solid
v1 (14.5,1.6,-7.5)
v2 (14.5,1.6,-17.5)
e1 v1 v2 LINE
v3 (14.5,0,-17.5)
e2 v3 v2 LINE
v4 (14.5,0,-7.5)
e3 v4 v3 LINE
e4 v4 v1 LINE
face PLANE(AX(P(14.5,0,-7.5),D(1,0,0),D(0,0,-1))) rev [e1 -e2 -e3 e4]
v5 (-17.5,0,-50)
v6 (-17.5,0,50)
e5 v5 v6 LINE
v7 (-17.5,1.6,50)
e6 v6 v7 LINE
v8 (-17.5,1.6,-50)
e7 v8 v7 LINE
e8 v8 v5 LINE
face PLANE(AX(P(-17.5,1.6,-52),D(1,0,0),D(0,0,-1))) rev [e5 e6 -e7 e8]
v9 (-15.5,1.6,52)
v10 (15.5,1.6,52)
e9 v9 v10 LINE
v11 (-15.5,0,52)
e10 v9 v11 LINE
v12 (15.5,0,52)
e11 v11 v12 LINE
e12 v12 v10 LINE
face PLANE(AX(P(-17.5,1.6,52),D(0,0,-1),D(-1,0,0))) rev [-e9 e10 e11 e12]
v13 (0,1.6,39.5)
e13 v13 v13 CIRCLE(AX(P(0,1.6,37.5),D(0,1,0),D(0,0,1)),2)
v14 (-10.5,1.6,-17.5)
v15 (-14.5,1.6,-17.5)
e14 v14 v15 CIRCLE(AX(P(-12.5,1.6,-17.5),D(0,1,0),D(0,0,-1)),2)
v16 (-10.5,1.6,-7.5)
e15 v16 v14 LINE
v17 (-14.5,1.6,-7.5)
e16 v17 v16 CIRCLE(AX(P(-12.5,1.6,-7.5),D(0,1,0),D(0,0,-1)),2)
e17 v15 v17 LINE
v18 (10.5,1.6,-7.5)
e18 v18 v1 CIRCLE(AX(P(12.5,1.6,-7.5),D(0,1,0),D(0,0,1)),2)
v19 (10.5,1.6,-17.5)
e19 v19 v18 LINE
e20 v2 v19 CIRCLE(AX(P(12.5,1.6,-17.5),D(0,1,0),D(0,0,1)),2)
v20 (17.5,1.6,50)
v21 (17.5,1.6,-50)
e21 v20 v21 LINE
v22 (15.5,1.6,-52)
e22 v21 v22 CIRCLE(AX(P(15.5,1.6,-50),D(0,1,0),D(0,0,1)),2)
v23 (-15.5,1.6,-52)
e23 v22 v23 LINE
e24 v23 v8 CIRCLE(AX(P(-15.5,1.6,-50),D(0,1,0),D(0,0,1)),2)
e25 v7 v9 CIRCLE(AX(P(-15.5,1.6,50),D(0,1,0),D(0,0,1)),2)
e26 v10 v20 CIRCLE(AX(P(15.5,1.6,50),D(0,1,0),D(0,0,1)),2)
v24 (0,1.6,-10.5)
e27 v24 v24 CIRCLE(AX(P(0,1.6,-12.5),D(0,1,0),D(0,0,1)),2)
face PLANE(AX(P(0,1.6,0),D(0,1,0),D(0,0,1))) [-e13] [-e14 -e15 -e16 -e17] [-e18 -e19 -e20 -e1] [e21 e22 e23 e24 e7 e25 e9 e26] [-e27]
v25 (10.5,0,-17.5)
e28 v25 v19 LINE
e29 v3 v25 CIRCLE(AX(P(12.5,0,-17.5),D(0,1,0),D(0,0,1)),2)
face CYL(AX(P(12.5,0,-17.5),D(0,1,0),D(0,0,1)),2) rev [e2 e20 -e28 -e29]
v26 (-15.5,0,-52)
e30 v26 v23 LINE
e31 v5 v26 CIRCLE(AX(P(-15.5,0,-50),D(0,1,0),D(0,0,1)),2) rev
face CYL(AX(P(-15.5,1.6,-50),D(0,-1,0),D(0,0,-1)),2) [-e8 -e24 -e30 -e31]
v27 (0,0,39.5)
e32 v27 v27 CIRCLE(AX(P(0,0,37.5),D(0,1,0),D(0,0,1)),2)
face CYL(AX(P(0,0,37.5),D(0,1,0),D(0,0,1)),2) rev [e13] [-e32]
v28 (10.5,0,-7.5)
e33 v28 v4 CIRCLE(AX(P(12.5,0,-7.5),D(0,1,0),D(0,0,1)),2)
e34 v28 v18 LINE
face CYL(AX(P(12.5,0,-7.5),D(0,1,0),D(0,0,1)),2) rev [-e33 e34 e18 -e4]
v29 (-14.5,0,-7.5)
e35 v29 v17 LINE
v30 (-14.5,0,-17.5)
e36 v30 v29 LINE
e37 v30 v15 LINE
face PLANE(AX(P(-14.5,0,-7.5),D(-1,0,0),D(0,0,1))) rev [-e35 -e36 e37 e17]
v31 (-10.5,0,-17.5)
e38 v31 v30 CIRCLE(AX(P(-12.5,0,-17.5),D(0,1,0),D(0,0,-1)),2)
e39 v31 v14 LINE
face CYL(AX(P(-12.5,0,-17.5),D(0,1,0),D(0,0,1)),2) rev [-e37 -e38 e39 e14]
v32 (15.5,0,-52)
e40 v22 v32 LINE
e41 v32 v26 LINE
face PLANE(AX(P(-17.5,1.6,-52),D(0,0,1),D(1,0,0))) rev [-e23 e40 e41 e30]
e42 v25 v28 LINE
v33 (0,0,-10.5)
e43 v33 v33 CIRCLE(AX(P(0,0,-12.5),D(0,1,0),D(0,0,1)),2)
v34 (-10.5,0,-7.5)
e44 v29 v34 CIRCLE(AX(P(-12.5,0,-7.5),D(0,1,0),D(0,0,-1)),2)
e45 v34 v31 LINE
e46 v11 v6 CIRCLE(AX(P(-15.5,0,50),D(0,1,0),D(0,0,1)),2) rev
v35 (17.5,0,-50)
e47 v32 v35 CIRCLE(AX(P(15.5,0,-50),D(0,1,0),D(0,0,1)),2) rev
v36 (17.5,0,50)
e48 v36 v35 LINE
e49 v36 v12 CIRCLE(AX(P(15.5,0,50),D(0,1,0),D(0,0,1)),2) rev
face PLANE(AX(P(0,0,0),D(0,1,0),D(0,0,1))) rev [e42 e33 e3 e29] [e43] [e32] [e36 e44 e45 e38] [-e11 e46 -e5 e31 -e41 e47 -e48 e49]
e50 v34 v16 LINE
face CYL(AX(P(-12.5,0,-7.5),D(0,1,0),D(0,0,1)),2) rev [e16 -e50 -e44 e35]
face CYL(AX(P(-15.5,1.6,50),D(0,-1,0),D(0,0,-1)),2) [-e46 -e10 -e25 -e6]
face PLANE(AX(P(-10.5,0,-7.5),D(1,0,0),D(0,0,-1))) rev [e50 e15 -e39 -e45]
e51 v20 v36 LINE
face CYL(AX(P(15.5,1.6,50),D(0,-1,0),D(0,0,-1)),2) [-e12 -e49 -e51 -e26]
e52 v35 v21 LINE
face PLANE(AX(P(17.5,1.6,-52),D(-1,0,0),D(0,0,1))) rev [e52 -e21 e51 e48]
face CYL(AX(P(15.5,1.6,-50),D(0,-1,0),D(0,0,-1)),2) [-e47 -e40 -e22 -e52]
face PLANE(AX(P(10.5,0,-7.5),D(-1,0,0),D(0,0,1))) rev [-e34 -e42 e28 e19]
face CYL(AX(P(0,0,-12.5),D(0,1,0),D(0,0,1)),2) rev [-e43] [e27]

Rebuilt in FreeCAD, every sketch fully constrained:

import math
import FreeCAD as App
import Part
import Sketcher
Q = App.Units.Quantity


def edges_at(feature, points):
    """Names of the edges that pass closest to the given points."""
    edges = feature.Shape.Edges
    near = lambda p: min(range(len(edges)), key=lambda i: edges[i].distToShape(Part.Vertex(*p))[0])
    return sorted({f"Edge{near(p) + 1}" for p in points})


def add_polygon(sketch, points):
    """Adds a closed chain of lines whose ends are joined by coincident constraints."""
    first, n = sketch.GeometryCount, len(points)
    for a, b in zip(points, points[1:] + points[:1]):
        sketch.addGeometry(Part.LineSegment(App.Vector(*a, 0), App.Vector(*b, 0)), False)
    for i in range(n):
        sketch.addConstraint(Sketcher.Constraint("Coincident", first + i, 2, first + (i + 1) % n, 1))

doc = App.newDocument("Part")
body = doc.addObject("PartDesign::Body", "Body")

# Sketch on XZ plane
sketch1 = body.newObject("Sketcher::SketchObject", "Sketch")
sketch1.AttachmentSupport = (doc.getObject("XZ_Plane"), [""])
sketch1.MapMode = "FlatFace"
add_polygon(sketch1, [(-18, -52), (-18, 52), (18, 52), (18, -52)])  # lines 0-3
sketch1.addConstraint(Sketcher.Constraint("Vertical", 0))
sketch1.addConstraint(Sketcher.Constraint("Horizontal", 1))
sketch1.addConstraint(Sketcher.Constraint("Vertical", 2))
sketch1.addConstraint(Sketcher.Constraint("Horizontal", 3))
sketch1.addConstraint(Sketcher.Constraint("Symmetric", 0, 2, 2, 2, -1, 1))
sketch1.addConstraint(Sketcher.Constraint("DistanceX", 1, 1, 1, 2, Q("35 mm")))
sketch1.addConstraint(Sketcher.Constraint("DistanceY", 0, 1, 0, 2, Q("104 mm")))
pad1 = body.newObject("PartDesign::Pad", "Pad")
pad1.Profile = sketch1
pad1.Length = 1.6
pad1.Reversed = True

# Sketch on XZ plane
sketch2 = body.newObject("Sketcher::SketchObject", "Sketch001")
sketch2.AttachmentSupport = (doc.getObject("XZ_Plane"), [""])
sketch2.MapMode = "FlatFace"
sketch2.AttachmentOffset = App.Placement(App.Vector(0, 0, -1.6), App.Rotation())
sketch2.addGeometry(Part.Circle(App.Vector(0, -12.5, 0), App.Vector(0, 0, 1), 2), False)
sketch2.addGeometry(Part.Circle(App.Vector(0, 37.5, 0), App.Vector(0, 0, 1), 2), False)
sketch2.addConstraint(Sketcher.Constraint("Equal", 0, 1))
sketch2.addConstraint(Sketcher.Constraint("PointOnObject", 0, 3, -2))
sketch2.addConstraint(Sketcher.Constraint("PointOnObject", 1, 3, -2))
sketch2.addConstraint(Sketcher.Constraint("Diameter", 0, Q("4 mm")))
sketch2.addConstraint(Sketcher.Constraint("DistanceY", 0, 3, 1, 3, Q("50 mm")))
sketch2.addConstraint(Sketcher.Constraint("DistanceY", 0, 3, -1, 1, Q("12.5 mm")))
pocket1 = body.newObject("PartDesign::Pocket", "Pocket")
pocket1.Profile = sketch2
pocket1.Type = "ThroughAll"
pocket1.Reversed = True

# Sketch on XZ plane
sketch3 = body.newObject("Sketcher::SketchObject", "Sketch002")
sketch3.AttachmentSupport = (doc.getObject("XZ_Plane"), [""])
sketch3.MapMode = "FlatFace"
sketch3.AttachmentOffset = App.Placement(App.Vector(0, 0, -1.6), App.Rotation())
sketch3.addGeometry(Part.LineSegment(App.Vector(10.5, -17.5, 0), App.Vector(10.5, -7.5, 0)), False)
sketch3.addGeometry(Part.ArcOfCircle(Part.Circle(App.Vector(12.5, -7.5, 0), App.Vector(0, 0, 1), 2), math.radians(0), math.radians(180)), False)
sketch3.addGeometry(Part.LineSegment(App.Vector(14.5, -7.5, 0), App.Vector(14.5, -17.5, 0)), False)
sketch3.addGeometry(Part.ArcOfCircle(Part.Circle(App.Vector(12.5, -17.5, 0), App.Vector(0, 0, 1), 2), math.radians(180), math.radians(360)), False)
sketch3.addGeometry(Part.LineSegment(App.Vector(-10.5, -7.5, 0), App.Vector(-10.5, -17.5, 0)), False)
sketch3.addGeometry(Part.ArcOfCircle(Part.Circle(App.Vector(-12.5, -17.5, 0), App.Vector(0, 0, 1), 2), math.radians(180), math.radians(360)), False)
sketch3.addGeometry(Part.LineSegment(App.Vector(-14.5, -17.5, 0), App.Vector(-14.5, -7.5, 0)), False)
sketch3.addGeometry(Part.ArcOfCircle(Part.Circle(App.Vector(-12.5, -7.5, 0), App.Vector(0, 0, 1), 2), math.radians(0), math.radians(180)), False)
sketch3.addConstraint(Sketcher.Constraint("Tangent", 0, 2, 1, 2))
sketch3.addConstraint(Sketcher.Constraint("Tangent", 1, 1, 2, 1))
sketch3.addConstraint(Sketcher.Constraint("Tangent", 2, 2, 3, 2))
sketch3.addConstraint(Sketcher.Constraint("Tangent", 3, 1, 0, 1))
sketch3.addConstraint(Sketcher.Constraint("Tangent", 4, 2, 5, 2))
sketch3.addConstraint(Sketcher.Constraint("Tangent", 5, 1, 6, 1))
sketch3.addConstraint(Sketcher.Constraint("Tangent", 6, 2, 7, 2))
sketch3.addConstraint(Sketcher.Constraint("Tangent", 7, 1, 4, 1))
sketch3.addConstraint(Sketcher.Constraint("Vertical", 0))
sketch3.addConstraint(Sketcher.Constraint("Vertical", 2))
sketch3.addConstraint(Sketcher.Constraint("Vertical", 4))
sketch3.addConstraint(Sketcher.Constraint("Vertical", 6))
sketch3.addConstraint(Sketcher.Constraint("Equal", 3, 5))
sketch3.addConstraint(Sketcher.Constraint("Symmetric", 3, 3, 5, 3, -2))
sketch3.addConstraint(Sketcher.Constraint("Horizontal", 1, 3, 7, 3))
sketch3.addConstraint(Sketcher.Constraint("Radius", 1, Q("2 mm")))
sketch3.addConstraint(Sketcher.Constraint("DistanceY", 0, 1, 0, 2, Q("10 mm")))
sketch3.addConstraint(Sketcher.Constraint("DistanceX", 5, 3, 3, 3, Q("25 mm")))
sketch3.addConstraint(Sketcher.Constraint("DistanceY", 1, 3, -1, 1, Q("7.5 mm")))
pocket2 = body.newObject("PartDesign::Pocket", "Pocket001")
pocket2.Profile = sketch3
pocket2.Type = "ThroughAll"
pocket2.Reversed = True
doc.recompute()

fillet = body.newObject("PartDesign::Fillet", "Fillet")
fillet.Base = (pocket2, edges_at(pocket2, [
    (17.5, 0.8, 52),
    (-17.5, 0.8, 52),
    (-17.5, 0.8, -52),
    (17.5, 0.8, -52),
]))
fillet.Radius = 2

doc.recompute()
